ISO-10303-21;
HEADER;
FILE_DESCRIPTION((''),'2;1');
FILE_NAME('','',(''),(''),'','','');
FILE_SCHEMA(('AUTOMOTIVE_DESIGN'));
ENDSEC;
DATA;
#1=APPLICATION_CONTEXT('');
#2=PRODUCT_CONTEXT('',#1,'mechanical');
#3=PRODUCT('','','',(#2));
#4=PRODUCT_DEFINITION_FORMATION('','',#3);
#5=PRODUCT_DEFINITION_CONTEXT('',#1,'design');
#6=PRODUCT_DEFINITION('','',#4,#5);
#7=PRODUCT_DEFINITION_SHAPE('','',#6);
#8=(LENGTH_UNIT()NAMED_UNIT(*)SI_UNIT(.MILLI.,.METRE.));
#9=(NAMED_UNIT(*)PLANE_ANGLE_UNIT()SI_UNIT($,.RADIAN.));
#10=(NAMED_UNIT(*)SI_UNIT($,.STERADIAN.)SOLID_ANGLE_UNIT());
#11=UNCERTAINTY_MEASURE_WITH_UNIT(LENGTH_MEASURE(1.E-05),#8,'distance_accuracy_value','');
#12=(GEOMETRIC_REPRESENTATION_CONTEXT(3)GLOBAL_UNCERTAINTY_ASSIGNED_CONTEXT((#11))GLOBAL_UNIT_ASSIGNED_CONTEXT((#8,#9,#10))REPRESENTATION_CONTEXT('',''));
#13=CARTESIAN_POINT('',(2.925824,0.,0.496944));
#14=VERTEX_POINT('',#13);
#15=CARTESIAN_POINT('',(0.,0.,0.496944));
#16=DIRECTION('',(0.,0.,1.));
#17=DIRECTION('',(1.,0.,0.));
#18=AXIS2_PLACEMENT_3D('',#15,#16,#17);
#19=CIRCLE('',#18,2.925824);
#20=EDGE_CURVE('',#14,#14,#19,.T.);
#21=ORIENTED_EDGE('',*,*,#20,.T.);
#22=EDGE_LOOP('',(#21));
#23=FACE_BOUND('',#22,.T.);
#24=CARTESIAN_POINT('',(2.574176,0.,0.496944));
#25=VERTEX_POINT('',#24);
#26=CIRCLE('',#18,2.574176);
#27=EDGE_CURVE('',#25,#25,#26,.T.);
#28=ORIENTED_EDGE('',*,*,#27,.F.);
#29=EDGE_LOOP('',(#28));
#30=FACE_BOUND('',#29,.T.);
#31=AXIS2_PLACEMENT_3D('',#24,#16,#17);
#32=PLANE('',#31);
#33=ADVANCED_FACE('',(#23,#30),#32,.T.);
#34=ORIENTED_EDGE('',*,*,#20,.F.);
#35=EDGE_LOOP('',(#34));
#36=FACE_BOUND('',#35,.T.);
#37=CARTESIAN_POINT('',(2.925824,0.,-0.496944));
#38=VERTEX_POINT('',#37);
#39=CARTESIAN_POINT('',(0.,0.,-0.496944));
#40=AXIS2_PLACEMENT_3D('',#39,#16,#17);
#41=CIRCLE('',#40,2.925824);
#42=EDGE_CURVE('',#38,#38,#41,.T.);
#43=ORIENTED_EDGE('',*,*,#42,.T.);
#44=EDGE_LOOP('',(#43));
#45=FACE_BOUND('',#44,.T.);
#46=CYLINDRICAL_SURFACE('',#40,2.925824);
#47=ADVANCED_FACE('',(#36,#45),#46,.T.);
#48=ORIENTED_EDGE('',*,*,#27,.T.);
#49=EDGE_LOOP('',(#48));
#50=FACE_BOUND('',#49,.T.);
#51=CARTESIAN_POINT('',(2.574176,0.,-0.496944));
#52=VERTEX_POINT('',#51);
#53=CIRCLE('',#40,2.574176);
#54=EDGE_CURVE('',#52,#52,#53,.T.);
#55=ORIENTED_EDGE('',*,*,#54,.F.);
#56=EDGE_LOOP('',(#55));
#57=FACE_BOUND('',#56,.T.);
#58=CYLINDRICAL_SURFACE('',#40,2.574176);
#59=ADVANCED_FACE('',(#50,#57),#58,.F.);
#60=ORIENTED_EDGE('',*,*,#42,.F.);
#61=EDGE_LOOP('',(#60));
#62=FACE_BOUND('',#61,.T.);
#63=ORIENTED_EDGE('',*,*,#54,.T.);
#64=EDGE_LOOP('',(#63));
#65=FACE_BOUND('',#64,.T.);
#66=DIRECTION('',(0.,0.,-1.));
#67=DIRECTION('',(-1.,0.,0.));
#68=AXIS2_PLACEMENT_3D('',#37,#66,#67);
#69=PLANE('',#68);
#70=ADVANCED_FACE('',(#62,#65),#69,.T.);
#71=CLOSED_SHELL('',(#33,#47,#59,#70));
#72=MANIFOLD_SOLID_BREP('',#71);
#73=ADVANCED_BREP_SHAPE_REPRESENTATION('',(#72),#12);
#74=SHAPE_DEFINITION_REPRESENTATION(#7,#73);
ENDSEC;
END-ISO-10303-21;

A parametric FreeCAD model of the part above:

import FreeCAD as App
import Part
import Sketcher

V = App.Vector
Q = App.Units.Quantity


def add_polygon(sketch, points):
    """Adds a closed chain of lines whose ends are joined by coincident constraints."""
    first, n = sketch.GeometryCount, len(points)
    for a, b in zip(points, points[1:] + points[:1]):
        sketch.addGeometry(Part.LineSegment(App.Vector(*a, 0), App.Vector(*b, 0)), False)
    for i in range(n):
        sketch.addConstraint(Sketcher.Constraint("Coincident", first + i, 2, first + (i + 1) % n, 1))

doc = App.newDocument("Part")
body = doc.addObject("PartDesign::Body", "Body")

# Sketch on XZ plane
sketch1 = body.newObject("Sketcher::SketchObject", "Sketch")
sketch1.AttachmentSupport = (doc.getObject("XZ_Plane"), [""])
sketch1.MapMode = "FlatFace"
add_polygon(sketch1, [(2.574176, -0.496944), (2.574176, 0.496944), (2.925824, 0.496944), (2.925824, -0.496944)])  # lines 0-3
sketch1.addConstraint(Sketcher.Constraint("Vertical", 0))
sketch1.addConstraint(Sketcher.Constraint("Horizontal", 1))
sketch1.addConstraint(Sketcher.Constraint("Vertical", 2))
sketch1.addConstraint(Sketcher.Constraint("Horizontal", 3))
sketch1.addConstraint(Sketcher.Constraint("DistanceX", 1, 1, 1, 2, Q("0.351648 mm")))
sketch1.addConstraint(Sketcher.Constraint("DistanceY", 0, 1, 0, 2, Q("0.993889 mm")))
sketch1.addConstraint(Sketcher.Constraint("DistanceX", -1, 1, 0, 2, Q("2.574176 mm")))
sketch1.addConstraint(Sketcher.Constraint("DistanceY", -1, 1, 0, 2, Q("0.496944 mm")))
revolution = body.newObject("PartDesign::Revolution", "Revolution")
revolution.Profile = sketch1
revolution.ReferenceAxis = (sketch1, ["V_Axis"])
revolution.Angle = 360

doc.recompute()
